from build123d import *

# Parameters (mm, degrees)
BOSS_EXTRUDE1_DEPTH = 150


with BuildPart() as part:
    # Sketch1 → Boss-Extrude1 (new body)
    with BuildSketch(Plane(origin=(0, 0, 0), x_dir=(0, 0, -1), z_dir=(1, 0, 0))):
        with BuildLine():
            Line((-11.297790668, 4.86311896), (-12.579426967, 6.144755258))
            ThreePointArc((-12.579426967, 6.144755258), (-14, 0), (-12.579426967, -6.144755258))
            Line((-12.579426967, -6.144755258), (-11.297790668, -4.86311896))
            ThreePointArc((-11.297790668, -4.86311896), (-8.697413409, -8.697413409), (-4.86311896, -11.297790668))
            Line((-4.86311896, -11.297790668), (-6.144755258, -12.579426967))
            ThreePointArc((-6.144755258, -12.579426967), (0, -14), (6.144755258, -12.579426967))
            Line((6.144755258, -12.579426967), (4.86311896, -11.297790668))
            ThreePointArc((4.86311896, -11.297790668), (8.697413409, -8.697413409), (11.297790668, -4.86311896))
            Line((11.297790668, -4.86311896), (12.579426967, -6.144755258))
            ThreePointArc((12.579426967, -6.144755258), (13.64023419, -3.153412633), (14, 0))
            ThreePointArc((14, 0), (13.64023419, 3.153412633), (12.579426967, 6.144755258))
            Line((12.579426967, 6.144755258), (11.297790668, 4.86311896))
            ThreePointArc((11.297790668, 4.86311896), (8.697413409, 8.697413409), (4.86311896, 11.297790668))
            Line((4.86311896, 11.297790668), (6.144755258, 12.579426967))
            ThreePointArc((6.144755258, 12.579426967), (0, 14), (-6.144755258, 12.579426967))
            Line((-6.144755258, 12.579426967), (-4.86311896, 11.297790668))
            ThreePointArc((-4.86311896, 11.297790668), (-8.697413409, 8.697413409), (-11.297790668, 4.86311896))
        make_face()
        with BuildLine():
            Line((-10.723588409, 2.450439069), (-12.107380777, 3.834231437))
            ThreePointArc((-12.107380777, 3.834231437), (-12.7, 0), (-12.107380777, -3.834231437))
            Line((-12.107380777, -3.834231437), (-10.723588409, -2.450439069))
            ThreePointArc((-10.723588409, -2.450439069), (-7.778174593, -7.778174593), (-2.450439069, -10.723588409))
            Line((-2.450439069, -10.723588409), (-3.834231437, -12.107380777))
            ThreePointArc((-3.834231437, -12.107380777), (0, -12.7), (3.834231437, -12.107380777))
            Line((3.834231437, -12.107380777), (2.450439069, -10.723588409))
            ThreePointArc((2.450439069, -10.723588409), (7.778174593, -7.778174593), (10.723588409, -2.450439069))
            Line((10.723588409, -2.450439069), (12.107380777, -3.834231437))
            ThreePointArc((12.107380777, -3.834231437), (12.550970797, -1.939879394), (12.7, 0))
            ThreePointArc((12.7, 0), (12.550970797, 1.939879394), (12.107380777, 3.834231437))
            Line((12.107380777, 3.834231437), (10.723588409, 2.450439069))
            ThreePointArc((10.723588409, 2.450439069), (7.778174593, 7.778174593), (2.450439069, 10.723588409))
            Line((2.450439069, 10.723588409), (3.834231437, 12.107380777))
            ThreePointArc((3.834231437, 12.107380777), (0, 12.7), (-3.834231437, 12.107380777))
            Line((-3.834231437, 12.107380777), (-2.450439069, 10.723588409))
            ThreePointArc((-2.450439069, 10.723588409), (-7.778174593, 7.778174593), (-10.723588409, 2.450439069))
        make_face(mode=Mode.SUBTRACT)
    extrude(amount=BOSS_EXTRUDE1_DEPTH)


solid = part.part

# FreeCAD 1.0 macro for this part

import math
import FreeCAD as App
import Part
import Sketcher
from FreeCAD import Vector
Q = App.Units.Quantity

doc = App.newDocument("Part")
body = doc.addObject("PartDesign::Body", "Body")

sketch1 = doc.addObject("Sketcher::SketchObject", "Sketch")
body.addObject(sketch1)
sketch1.AttachmentSupport = (doc.YZ_Plane, [""])
sketch1.MapMode = "FlatFace"
sketch1.addGeometry([
    Part.LineSegment(Vector(4.9, 11.3, 0), Vector(6.1, 12.6, 0)),
    Part.ArcOfCircle(Part.Circle(Vector(0, 0, 0), Vector(0, 0, 1), 14), math.radians(64), math.radians(116)),
    Part.LineSegment(Vector(-6.1, 12.6, 0), Vector(-4.9, 11.3, 0)),
    Part.ArcOfCircle(Part.Circle(Vector(0, 0, 0), Vector(0, 0, 1), 12.3), math.radians(113), math.radians(157)),
    Part.LineSegment(Vector(-11.3, 4.9, 0), Vector(-12.6, 6.1, 0)),
    Part.ArcOfCircle(Part.Circle(Vector(0, 0, 0), Vector(0, 0, 1), 14), math.radians(154), math.radians(206)),
    Part.LineSegment(Vector(-12.6, -6.1, 0), Vector(-11.3, -4.9, 0)),
    Part.ArcOfCircle(Part.Circle(Vector(0, 0, 0), Vector(0, 0, 1), 12.3), math.radians(-157), math.radians(-113)),
    Part.LineSegment(Vector(-4.9, -11.3, 0), Vector(-6.1, -12.6, 0)),
    Part.ArcOfCircle(Part.Circle(Vector(0, 0, 0), Vector(0, 0, 1), 14), math.radians(-116), math.radians(-90)),
    Part.ArcOfCircle(Part.Circle(Vector(0, 0, 0), Vector(0, 0, 1), 14), math.radians(-90), math.radians(-64)),
    Part.LineSegment(Vector(6.1, -12.6, 0), Vector(4.9, -11.3, 0)),
    Part.ArcOfCircle(Part.Circle(Vector(0, 0, 0), Vector(0, 0, 1), 12.3), math.radians(-67), math.radians(-23)),
    Part.LineSegment(Vector(11.3, -4.9, 0), Vector(12.6, -6.1, 0)),
    Part.ArcOfCircle(Part.Circle(Vector(0, 0, 0), Vector(0, 0, 1), 14), math.radians(-26), math.radians(26)),
    Part.LineSegment(Vector(12.6, 6.1, 0), Vector(11.3, 4.9, 0)),
    Part.ArcOfCircle(Part.Circle(Vector(0, 0, 0), Vector(0, 0, 1), 12.3), math.radians(23), math.radians(67)),
    Part.LineSegment(Vector(3.8, 12.1, 0), Vector(2.5, 10.7, 0)),
    Part.ArcOfCircle(Part.Circle(Vector(0, 0, 0), Vector(0, 0, 1), 11), math.radians(13), math.radians(77)),
    Part.LineSegment(Vector(10.7, 2.5, 0), Vector(12.1, 3.8, 0)),
    Part.ArcOfCircle(Part.Circle(Vector(0, 0, 0), Vector(0, 0, 1), 12.7), math.radians(-18), math.radians(18)),
    Part.LineSegment(Vector(12.1, -3.8, 0), Vector(10.7, -2.5, 0)),
    Part.ArcOfCircle(Part.Circle(Vector(0, 0, 0), Vector(0, 0, 1), 11), math.radians(-77), math.radians(-13)),
    Part.LineSegment(Vector(2.5, -10.7, 0), Vector(3.8, -12.1, 0)),
    Part.ArcOfCircle(Part.Circle(Vector(0, 0, 0), Vector(0, 0, 1), 12.7), math.radians(-90), math.radians(-72.43)),
    Part.ArcOfCircle(Part.Circle(Vector(0, 0, 0), Vector(0, 0, 1), 12.7), math.radians(-107.57), math.radians(-90)),
    Part.LineSegment(Vector(-3.8, -12.1, 0), Vector(-2.5, -10.7, 0)),
    Part.ArcOfCircle(Part.Circle(Vector(0, 0, 0), Vector(0, 0, 1), 11), math.radians(-167), math.radians(-103)),
    Part.LineSegment(Vector(-10.7, -2.5, 0), Vector(-12.1, -3.8, 0)),
    Part.ArcOfCircle(Part.Circle(Vector(0, 0, 0), Vector(0, 0, 1), 12.7), math.radians(162), math.radians(198)),
    Part.LineSegment(Vector(-12.1, 3.8, 0), Vector(-10.7, 2.5, 0)),
    Part.ArcOfCircle(Part.Circle(Vector(0, 0, 0), Vector(0, 0, 1), 11), math.radians(103), math.radians(167)),
    Part.LineSegment(Vector(-2.5, 10.7, 0), Vector(-3.8, 12.1, 0)),
    Part.ArcOfCircle(Part.Circle(Vector(0, 0, 0), Vector(0, 0, 1), 12.7), math.radians(72), math.radians(108)),
], False)
sketch1.addConstraint([
    Sketcher.Constraint("Coincident", 0, 2, 1, 1),
    Sketcher.Constraint("Coincident", 1, 2, 2, 1),
    Sketcher.Constraint("Coincident", 2, 2, 3, 1),
    Sketcher.Constraint("Coincident", 3, 2, 4, 1),
    Sketcher.Constraint("Coincident", 4, 2, 5, 1),
    Sketcher.Constraint("Coincident", 5, 2, 6, 1),
    Sketcher.Constraint("Coincident", 6, 2, 7, 1),
    Sketcher.Constraint("Coincident", 7, 2, 8, 1),
    Sketcher.Constraint("Coincident", 8, 2, 9, 1),
    Sketcher.Constraint("Tangent", 9, 2, 10, 1),
    Sketcher.Constraint("Coincident", 10, 2, 11, 1),
    Sketcher.Constraint("Coincident", 11, 2, 12, 1),
    Sketcher.Constraint("Coincident", 12, 2, 13, 1),
    Sketcher.Constraint("Coincident", 13, 2, 14, 1),
    Sketcher.Constraint("Coincident", 14, 2, 15, 1),
    Sketcher.Constraint("Coincident", 15, 2, 16, 1),
    Sketcher.Constraint("Coincident", 16, 2, 0, 1),
    Sketcher.Constraint("Coincident", 17, 2, 18, 2),
    Sketcher.Constraint("Coincident", 18, 1, 19, 1),
    Sketcher.Constraint("Coincident", 19, 2, 20, 2),
    Sketcher.Constraint("Coincident", 20, 1, 21, 1),
    Sketcher.Constraint("Coincident", 21, 2, 22, 2),
    Sketcher.Constraint("Coincident", 22, 1, 23, 1),
    Sketcher.Constraint("Coincident", 23, 2, 24, 2),
    Sketcher.Constraint("Tangent", 24, 1, 25, 2),
    Sketcher.Constraint("Coincident", 25, 1, 26, 1),
    Sketcher.Constraint("Coincident", 26, 2, 27, 2),
    Sketcher.Constraint("Coincident", 27, 1, 28, 1),
    Sketcher.Constraint("Coincident", 28, 2, 29, 2),
    Sketcher.Constraint("Coincident", 29, 1, 30, 1),
    Sketcher.Constraint("Coincident", 30, 2, 31, 2),
    Sketcher.Constraint("Coincident", 31, 1, 32, 1),
    Sketcher.Constraint("Coincident", 32, 2, 33, 2),
    Sketcher.Constraint("Coincident", 33, 1, 17, 1),
    Sketcher.Constraint("Coincident", 1, 3, -1, 1),
    Sketcher.Constraint("Coincident", 3, 3, -1, 1),
    Sketcher.Constraint("Coincident", 5, 3, -1, 1),
    Sketcher.Constraint("Coincident", 7, 3, -1, 1),
    Sketcher.Constraint("Coincident", 9, 3, -1, 1),
    Sketcher.Constraint("Coincident", 12, 3, -1, 1),
    Sketcher.Constraint("Coincident", 14, 3, -1, 1),
    Sketcher.Constraint("Coincident", 16, 3, -1, 1),
    Sketcher.Constraint("Coincident", 18, 3, -1, 1),
    Sketcher.Constraint("Coincident", 20, 3, -1, 1),
    Sketcher.Constraint("Coincident", 22, 3, -1, 1),
    Sketcher.Constraint("Coincident", 24, 3, -1, 1),
    Sketcher.Constraint("Coincident", 27, 3, -1, 1),
    Sketcher.Constraint("Coincident", 29, 3, -1, 1),
    Sketcher.Constraint("Coincident", 31, 3, -1, 1),
    Sketcher.Constraint("Coincident", 33, 3, -1, 1),
    Sketcher.Constraint("Equal", 1, 5),
    Sketcher.Constraint("Equal", 3, 7),
    Sketcher.Constraint("Equal", 5, 9),
    Sketcher.Constraint("Equal", 9, 10),
    Sketcher.Constraint("Equal", 7, 12),
    Sketcher.Constraint("Equal", 10, 14),
    Sketcher.Constraint("Equal", 12, 16),
    Sketcher.Constraint("Equal", 18, 22),
    Sketcher.Constraint("Equal", 20, 24),
    Sketcher.Constraint("Equal", 24, 25),
    Sketcher.Constraint("Equal", 22, 27),
    Sketcher.Constraint("Equal", 25, 29),
    Sketcher.Constraint("Equal", 27, 31),
    Sketcher.Constraint("Equal", 29, 33),
    Sketcher.Constraint("PointOnObject", 9, 2, -2),
    Sketcher.Constraint("PointOnObject", 24, 1, -2),
    Sketcher.Constraint("Perpendicular", 0, 2),
    Sketcher.Constraint("Parallel", 2, 4),
    Sketcher.Constraint("Perpendicular", 4, 6),
    Sketcher.Constraint("Parallel", 6, 8),
    Sketcher.Constraint("Perpendicular", 8, 11),
    Sketcher.Constraint("Parallel", 11, 13),
    Sketcher.Constraint("Perpendicular", 13, 15),
    Sketcher.Constraint("Parallel", 15, 17),
    Sketcher.Constraint("Parallel", 17, 19),
    Sketcher.Constraint("Perpendicular", 19, 21),
    Sketcher.Constraint("Parallel", 21, 23),
    Sketcher.Constraint("Perpendicular", 23, 26),
    Sketcher.Constraint("Parallel", 26, 28),
    Sketcher.Constraint("Perpendicular", 28, 30),
    Sketcher.Constraint("Parallel", 30, 32),
    Sketcher.Constraint("Horizontal", 0, 2, 1, 2),
    Sketcher.Constraint("Horizontal", 8, 2, 10, 2),
    Sketcher.Constraint("Horizontal", 7, 2, 11, 2),
    Sketcher.Constraint("Horizontal", 6, 2, 12, 2),
    Sketcher.Constraint("Horizontal", 4, 2, 14, 2),
    Sketcher.Constraint("Horizontal", 23, 2, 25, 1),
    Sketcher.Constraint("Horizontal", 21, 2, 27, 1),
    Sketcher.Constraint("Horizontal", 19, 2, 29, 1),
    Sketcher.Constraint("Horizontal", 17, 2, 31, 1),
    Sketcher.Constraint("Vertical", 4, 2, 5, 2),
    Sketcher.Constraint("Vertical", 2, 2, 7, 2),
    Sketcher.Constraint("Vertical", 19, 2, 20, 1),
    Sketcher.Constraint("Vertical", 17, 2, 22, 1),
    Sketcher.Constraint("Equal", 2, 4),
    Sketcher.Constraint("Equal", 17, 19),
    Sketcher.Constraint("Radius", 1, Q("14 mm")),
    Sketcher.Constraint("Radius", 18, Q("11 mm")),
    Sketcher.Constraint("Radius", 3, Q("12.3 mm")),
    Sketcher.Constraint("Radius", 20, Q("12.7 mm")),
    Sketcher.Constraint("DistanceX", 2, 2, -1, 1, Q("4.863119 mm")),
    Sketcher.Constraint("DistanceX", -1, 1, 17, 2, Q("2.450439 mm")),
])
pad1 = doc.addObject("PartDesign::Pad", "Pad")
body.addObject(pad1)
pad1.Profile = sketch1
pad1.Length = 150

doc.recompute()
